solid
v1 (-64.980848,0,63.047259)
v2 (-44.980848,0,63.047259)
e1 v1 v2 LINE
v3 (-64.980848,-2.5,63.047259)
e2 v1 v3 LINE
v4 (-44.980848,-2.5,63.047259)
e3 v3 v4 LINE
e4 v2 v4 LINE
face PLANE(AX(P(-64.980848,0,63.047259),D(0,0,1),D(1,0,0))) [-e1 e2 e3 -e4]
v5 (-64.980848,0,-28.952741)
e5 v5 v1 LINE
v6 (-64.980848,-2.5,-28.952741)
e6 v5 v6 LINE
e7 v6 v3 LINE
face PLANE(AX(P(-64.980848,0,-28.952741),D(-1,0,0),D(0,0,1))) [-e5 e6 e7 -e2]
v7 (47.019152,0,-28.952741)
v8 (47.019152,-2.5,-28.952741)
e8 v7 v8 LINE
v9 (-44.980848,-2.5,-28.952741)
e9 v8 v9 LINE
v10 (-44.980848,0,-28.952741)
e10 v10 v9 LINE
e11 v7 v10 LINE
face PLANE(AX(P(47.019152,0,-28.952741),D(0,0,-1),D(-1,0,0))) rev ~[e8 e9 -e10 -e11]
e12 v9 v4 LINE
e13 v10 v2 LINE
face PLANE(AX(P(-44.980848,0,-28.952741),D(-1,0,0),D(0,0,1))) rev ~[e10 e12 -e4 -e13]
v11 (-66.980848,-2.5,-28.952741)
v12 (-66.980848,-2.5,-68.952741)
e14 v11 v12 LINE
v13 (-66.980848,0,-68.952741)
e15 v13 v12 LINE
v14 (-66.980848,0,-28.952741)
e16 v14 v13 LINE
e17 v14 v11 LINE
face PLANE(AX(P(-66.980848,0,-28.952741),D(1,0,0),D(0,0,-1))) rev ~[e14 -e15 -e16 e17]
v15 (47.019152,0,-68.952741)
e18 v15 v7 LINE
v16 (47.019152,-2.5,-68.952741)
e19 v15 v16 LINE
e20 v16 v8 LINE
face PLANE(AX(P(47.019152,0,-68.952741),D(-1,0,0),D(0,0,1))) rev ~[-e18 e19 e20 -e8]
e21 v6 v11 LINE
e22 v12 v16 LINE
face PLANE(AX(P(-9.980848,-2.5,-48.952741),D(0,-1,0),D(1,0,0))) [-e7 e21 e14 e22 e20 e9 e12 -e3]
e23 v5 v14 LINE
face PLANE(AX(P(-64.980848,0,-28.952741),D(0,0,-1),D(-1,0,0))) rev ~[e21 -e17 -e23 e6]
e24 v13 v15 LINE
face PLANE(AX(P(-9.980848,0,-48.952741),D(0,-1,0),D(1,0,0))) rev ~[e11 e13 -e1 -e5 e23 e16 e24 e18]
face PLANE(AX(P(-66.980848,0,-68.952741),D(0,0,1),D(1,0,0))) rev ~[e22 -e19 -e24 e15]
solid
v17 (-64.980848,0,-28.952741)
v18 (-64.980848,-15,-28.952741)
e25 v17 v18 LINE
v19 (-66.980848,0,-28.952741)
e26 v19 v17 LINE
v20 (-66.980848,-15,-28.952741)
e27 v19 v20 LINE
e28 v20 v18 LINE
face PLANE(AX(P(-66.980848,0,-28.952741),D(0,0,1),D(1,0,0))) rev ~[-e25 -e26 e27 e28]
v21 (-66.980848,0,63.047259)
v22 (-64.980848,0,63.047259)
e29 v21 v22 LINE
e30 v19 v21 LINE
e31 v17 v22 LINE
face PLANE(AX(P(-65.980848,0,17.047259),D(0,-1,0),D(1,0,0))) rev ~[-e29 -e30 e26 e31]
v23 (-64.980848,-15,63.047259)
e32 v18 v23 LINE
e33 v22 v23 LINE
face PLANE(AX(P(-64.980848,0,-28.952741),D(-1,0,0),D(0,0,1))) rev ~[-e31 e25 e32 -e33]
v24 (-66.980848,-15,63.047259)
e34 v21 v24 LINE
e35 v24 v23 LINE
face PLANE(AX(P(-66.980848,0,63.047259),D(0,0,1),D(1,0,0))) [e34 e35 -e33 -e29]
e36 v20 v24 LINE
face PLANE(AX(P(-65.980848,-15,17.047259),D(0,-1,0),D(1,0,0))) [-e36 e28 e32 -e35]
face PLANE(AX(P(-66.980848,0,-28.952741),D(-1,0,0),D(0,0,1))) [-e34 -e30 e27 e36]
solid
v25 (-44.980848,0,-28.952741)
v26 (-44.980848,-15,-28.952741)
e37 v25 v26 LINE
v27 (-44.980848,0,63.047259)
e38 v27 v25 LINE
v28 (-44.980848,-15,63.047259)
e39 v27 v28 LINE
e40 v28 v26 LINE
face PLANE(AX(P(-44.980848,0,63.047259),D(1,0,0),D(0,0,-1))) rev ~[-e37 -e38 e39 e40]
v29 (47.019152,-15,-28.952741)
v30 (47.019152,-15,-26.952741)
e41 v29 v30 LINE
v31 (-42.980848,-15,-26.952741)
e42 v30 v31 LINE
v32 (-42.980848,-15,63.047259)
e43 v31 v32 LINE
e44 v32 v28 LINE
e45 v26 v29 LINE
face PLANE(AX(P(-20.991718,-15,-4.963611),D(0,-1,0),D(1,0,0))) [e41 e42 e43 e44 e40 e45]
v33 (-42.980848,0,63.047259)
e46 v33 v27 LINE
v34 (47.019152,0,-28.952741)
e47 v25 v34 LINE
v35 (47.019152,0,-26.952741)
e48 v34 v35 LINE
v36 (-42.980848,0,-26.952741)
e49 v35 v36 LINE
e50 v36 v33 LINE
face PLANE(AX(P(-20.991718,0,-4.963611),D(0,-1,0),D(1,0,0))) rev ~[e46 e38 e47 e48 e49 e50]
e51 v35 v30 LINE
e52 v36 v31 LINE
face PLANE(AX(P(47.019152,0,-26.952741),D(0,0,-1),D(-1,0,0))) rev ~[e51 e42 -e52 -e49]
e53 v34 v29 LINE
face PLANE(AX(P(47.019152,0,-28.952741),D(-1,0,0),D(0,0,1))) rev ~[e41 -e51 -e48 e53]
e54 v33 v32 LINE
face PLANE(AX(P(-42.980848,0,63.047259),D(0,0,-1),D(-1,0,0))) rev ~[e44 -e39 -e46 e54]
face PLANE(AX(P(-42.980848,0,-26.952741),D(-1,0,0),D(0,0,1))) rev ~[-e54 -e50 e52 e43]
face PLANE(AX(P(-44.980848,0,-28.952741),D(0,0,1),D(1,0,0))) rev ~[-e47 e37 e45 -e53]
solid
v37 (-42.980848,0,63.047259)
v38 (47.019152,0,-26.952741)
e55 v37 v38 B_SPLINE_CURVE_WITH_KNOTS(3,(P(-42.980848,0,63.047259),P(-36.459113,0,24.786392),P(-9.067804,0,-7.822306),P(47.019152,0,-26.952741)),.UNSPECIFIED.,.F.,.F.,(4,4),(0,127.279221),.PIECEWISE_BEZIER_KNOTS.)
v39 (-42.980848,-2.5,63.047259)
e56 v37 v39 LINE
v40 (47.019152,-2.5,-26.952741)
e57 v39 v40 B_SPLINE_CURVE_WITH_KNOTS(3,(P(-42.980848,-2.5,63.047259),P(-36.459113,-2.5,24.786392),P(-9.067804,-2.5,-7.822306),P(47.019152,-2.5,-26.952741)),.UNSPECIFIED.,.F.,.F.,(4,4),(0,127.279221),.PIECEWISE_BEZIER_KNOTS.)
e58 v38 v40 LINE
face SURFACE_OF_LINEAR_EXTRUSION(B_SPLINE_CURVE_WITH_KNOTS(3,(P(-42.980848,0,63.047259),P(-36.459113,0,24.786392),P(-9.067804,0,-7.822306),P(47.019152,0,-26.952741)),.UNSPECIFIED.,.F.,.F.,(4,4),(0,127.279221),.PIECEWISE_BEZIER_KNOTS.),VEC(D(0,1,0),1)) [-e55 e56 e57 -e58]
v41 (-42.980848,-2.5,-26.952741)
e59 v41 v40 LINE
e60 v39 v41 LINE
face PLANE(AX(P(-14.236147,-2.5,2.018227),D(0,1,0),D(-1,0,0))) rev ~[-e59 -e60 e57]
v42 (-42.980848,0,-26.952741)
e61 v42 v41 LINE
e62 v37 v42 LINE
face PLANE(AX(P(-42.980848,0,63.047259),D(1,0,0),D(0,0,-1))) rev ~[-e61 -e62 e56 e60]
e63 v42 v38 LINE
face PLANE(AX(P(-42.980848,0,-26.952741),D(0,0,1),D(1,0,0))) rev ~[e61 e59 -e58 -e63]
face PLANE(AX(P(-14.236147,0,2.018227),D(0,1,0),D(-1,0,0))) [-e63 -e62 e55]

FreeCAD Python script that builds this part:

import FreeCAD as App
import Part
import Sketcher
Q = App.Units.Quantity

doc = App.newDocument("Part")
body = doc.addObject("PartDesign::Body", "Body")
body.AllowCompound = True

# Sketch on XZ plane
sketch1 = body.newObject("Sketcher::SketchObject", "Sketch")
sketch1.AttachmentSupport = (doc.getObject("XZ_Plane"), [""])
sketch1.MapMode = "FlatFace"
sketch1.addGeometry(Part.BSplineCurve([App.Vector(-42.980848, 63.047259, 0), App.Vector(-36.459113, 24.786392, 0), App.Vector(-9.067804, -7.822306, 0), App.Vector(47.019152, -26.952741, 0)], [4, 4], [0, 127.279221], False, 3, [1, 1, 1, 1], False), False)
sketch1.addGeometry(Part.LineSegment(App.Vector(-42.980848, 63.047259, 0), App.Vector(-42.980848, -26.952741, 0)), False)
sketch1.addGeometry(Part.LineSegment(App.Vector(-42.980848, -26.952741, 0), App.Vector(47.019152, -26.952741, 0)), False)
sketch1.addGeometry(Part.LineSegment(App.Vector(47.019152, -28.952741, 0), App.Vector(-44.980848, -28.952741, 0)), False)
sketch1.addGeometry(Part.LineSegment(App.Vector(-44.980848, -28.952741, 0), App.Vector(-44.980848, 63.047259, 0)), False)
sketch1.addGeometry(Part.LineSegment(App.Vector(-44.980848, 63.047259, 0), App.Vector(-64.980848, 63.047259, 0)), False)
sketch1.addGeometry(Part.LineSegment(App.Vector(-64.980848, 63.047259, 0), App.Vector(-64.980848, -28.952741, 0)), False)
sketch1.addGeometry(Part.LineSegment(App.Vector(-64.980848, -28.952741, 0), App.Vector(-66.980848, -28.952741, 0)), False)
sketch1.addGeometry(Part.LineSegment(App.Vector(-66.980848, -28.952741, 0), App.Vector(-66.980848, -68.952741, 0)), False)
sketch1.addGeometry(Part.LineSegment(App.Vector(-66.980848, -68.952741, 0), App.Vector(47.019152, -68.952741, 0)), False)
sketch1.addGeometry(Part.LineSegment(App.Vector(47.019152, -68.952741, 0), App.Vector(47.019152, -28.952741, 0)), False)
sketch1.addConstraint(Sketcher.Constraint("Block", 0))
sketch1.addConstraint(Sketcher.Constraint("Coincident", 0, 1, 1, 1))
sketch1.addConstraint(Sketcher.Constraint("Coincident", 1, 2, 2, 1))
sketch1.addConstraint(Sketcher.Constraint("Coincident", 2, 2, 0, 2))
sketch1.addConstraint(Sketcher.Constraint("Coincident", 3, 2, 4, 1))
sketch1.addConstraint(Sketcher.Constraint("Coincident", 4, 2, 5, 1))
sketch1.addConstraint(Sketcher.Constraint("Coincident", 5, 2, 6, 1))
sketch1.addConstraint(Sketcher.Constraint("Coincident", 6, 2, 7, 1))
sketch1.addConstraint(Sketcher.Constraint("Coincident", 7, 2, 8, 1))
sketch1.addConstraint(Sketcher.Constraint("Coincident", 8, 2, 9, 1))
sketch1.addConstraint(Sketcher.Constraint("Coincident", 9, 2, 10, 1))
sketch1.addConstraint(Sketcher.Constraint("Coincident", 10, 2, 3, 1))
sketch1.addConstraint(Sketcher.Constraint("Vertical", 1))
sketch1.addConstraint(Sketcher.Constraint("Horizontal", 2))
sketch1.addConstraint(Sketcher.Constraint("Horizontal", 3))
sketch1.addConstraint(Sketcher.Constraint("Vertical", 4))
sketch1.addConstraint(Sketcher.Constraint("Horizontal", 5))
sketch1.addConstraint(Sketcher.Constraint("Vertical", 6))
sketch1.addConstraint(Sketcher.Constraint("Horizontal", 7))
sketch1.addConstraint(Sketcher.Constraint("Vertical", 8))
sketch1.addConstraint(Sketcher.Constraint("Horizontal", 9))
sketch1.addConstraint(Sketcher.Constraint("Vertical", 10))
sketch1.addConstraint(Sketcher.Constraint("Horizontal", 3, 2, 6, 2))
sketch1.addConstraint(Sketcher.Constraint("Vertical", 2, 2, 9, 2))
sketch1.addConstraint(Sketcher.Constraint("Equal", 3, 4))
sketch1.addConstraint(Sketcher.Constraint("DistanceX", 3, 2, 3, 1, Q("92 mm")))
sketch1.addConstraint(Sketcher.Constraint("DistanceX", 5, 2, 5, 1, Q("20 mm")))
sketch1.addConstraint(Sketcher.Constraint("DistanceX", 7, 2, 7, 1, Q("2 mm")))
sketch1.addConstraint(Sketcher.Constraint("DistanceY", 8, 2, 8, 1, Q("40 mm")))
sketch1.addConstraint(Sketcher.Constraint("DistanceY", 3, 2, 1, 2, Q("2 mm")))
pad1 = body.newObject("PartDesign::Pad", "Pad")
pad1.Profile = sketch1
pad1.Length = 2.5
body2 = doc.addObject("PartDesign::Body", "Body001")
body2.AllowCompound = True

# Sketch on XZ plane
sketch2 = body2.newObject("Sketcher::SketchObject", "Sketch001")
sketch2.AttachmentSupport = (doc.getObject("XZ_Plane001"), [""])
sketch2.MapMode = "FlatFace"
sketch2.addGeometry(Part.LineSegment(App.Vector(-67, 63, 0), App.Vector(-67, -29, 0)), False)
sketch2.addGeometry(Part.LineSegment(App.Vector(-67, -29, 0), App.Vector(-65, -29, 0)), False)
sketch2.addGeometry(Part.LineSegment(App.Vector(-65, -29, 0), App.Vector(-65, 63, 0)), False)
sketch2.addGeometry(Part.LineSegment(App.Vector(-65, 63, 0), App.Vector(-67, 63, 0)), False)
sketch2.addGeometry(Part.LineSegment(App.Vector(-43, -27, 0), App.Vector(-43, 63, 0)), False)
sketch2.addGeometry(Part.LineSegment(App.Vector(-43, 63, 0), App.Vector(-45, 63, 0)), False)
sketch2.addGeometry(Part.LineSegment(App.Vector(-45, 63, 0), App.Vector(-45, -29, 0)), False)
sketch2.addGeometry(Part.LineSegment(App.Vector(-45, -29, 0), App.Vector(47, -29, 0)), False)
sketch2.addGeometry(Part.LineSegment(App.Vector(47, -29, 0), App.Vector(47, -27, 0)), False)
sketch2.addGeometry(Part.LineSegment(App.Vector(47, -27, 0), App.Vector(-43, -27, 0)), False)
sketch2.addConstraint(Sketcher.Constraint("Coincident", 0, 2, 1, 1))
sketch2.addConstraint(Sketcher.Constraint("Coincident", 1, 2, 2, 1))
sketch2.addConstraint(Sketcher.Constraint("Coincident", 2, 2, 3, 1))
sketch2.addConstraint(Sketcher.Constraint("Coincident", 3, 2, 0, 1))
sketch2.addConstraint(Sketcher.Constraint("Coincident", 4, 2, 5, 1))
sketch2.addConstraint(Sketcher.Constraint("Coincident", 5, 2, 6, 1))
sketch2.addConstraint(Sketcher.Constraint("Coincident", 6, 2, 7, 1))
sketch2.addConstraint(Sketcher.Constraint("Coincident", 7, 2, 8, 1))
sketch2.addConstraint(Sketcher.Constraint("Coincident", 8, 2, 9, 1))
sketch2.addConstraint(Sketcher.Constraint("Coincident", 9, 2, 4, 1))
sketch2.addConstraint(Sketcher.Constraint("Vertical", 0))
sketch2.addConstraint(Sketcher.Constraint("Horizontal", 1))
sketch2.addConstraint(Sketcher.Constraint("Vertical", 2))
sketch2.addConstraint(Sketcher.Constraint("Horizontal", 3))
sketch2.addConstraint(Sketcher.Constraint("Vertical", 4))
sketch2.addConstraint(Sketcher.Constraint("Horizontal", 5))
sketch2.addConstraint(Sketcher.Constraint("Vertical", 6))
sketch2.addConstraint(Sketcher.Constraint("Horizontal", 7))
sketch2.addConstraint(Sketcher.Constraint("Vertical", 8))
sketch2.addConstraint(Sketcher.Constraint("Horizontal", 9))
sketch2.addConstraint(Sketcher.Constraint("Horizontal", 3, 2, 4, 2))
sketch2.addConstraint(Sketcher.Constraint("Horizontal", 1, 2, 6, 2))
sketch2.addConstraint(Sketcher.Constraint("Equal", 3, 5))
sketch2.addConstraint(Sketcher.Constraint("Equal", 7, 0))
sketch2.addConstraint(Sketcher.Constraint("Equal", 9, 4))
sketch2.addConstraint(Sketcher.Constraint("DistanceX", 1, 1, 1, 2, Q("2 mm")))
sketch2.addConstraint(Sketcher.Constraint("DistanceX", 7, 1, 7, 2, Q("92 mm")))
sketch2.addConstraint(Sketcher.Constraint("DistanceX", 2, 2, 4, 2, Q("22 mm")))
sketch2.addConstraint(Sketcher.Constraint("DistanceY", 0, 2, -1, 1, Q("28.952741 mm")))
sketch2.addConstraint(Sketcher.Constraint("DistanceX", 4, 2, -1, 1, Q("42.980848 mm")))
pad2 = body2.newObject("PartDesign::Pad", "Pad001")
pad2.Profile = sketch2
pad2.Length = 15

doc.recompute()
